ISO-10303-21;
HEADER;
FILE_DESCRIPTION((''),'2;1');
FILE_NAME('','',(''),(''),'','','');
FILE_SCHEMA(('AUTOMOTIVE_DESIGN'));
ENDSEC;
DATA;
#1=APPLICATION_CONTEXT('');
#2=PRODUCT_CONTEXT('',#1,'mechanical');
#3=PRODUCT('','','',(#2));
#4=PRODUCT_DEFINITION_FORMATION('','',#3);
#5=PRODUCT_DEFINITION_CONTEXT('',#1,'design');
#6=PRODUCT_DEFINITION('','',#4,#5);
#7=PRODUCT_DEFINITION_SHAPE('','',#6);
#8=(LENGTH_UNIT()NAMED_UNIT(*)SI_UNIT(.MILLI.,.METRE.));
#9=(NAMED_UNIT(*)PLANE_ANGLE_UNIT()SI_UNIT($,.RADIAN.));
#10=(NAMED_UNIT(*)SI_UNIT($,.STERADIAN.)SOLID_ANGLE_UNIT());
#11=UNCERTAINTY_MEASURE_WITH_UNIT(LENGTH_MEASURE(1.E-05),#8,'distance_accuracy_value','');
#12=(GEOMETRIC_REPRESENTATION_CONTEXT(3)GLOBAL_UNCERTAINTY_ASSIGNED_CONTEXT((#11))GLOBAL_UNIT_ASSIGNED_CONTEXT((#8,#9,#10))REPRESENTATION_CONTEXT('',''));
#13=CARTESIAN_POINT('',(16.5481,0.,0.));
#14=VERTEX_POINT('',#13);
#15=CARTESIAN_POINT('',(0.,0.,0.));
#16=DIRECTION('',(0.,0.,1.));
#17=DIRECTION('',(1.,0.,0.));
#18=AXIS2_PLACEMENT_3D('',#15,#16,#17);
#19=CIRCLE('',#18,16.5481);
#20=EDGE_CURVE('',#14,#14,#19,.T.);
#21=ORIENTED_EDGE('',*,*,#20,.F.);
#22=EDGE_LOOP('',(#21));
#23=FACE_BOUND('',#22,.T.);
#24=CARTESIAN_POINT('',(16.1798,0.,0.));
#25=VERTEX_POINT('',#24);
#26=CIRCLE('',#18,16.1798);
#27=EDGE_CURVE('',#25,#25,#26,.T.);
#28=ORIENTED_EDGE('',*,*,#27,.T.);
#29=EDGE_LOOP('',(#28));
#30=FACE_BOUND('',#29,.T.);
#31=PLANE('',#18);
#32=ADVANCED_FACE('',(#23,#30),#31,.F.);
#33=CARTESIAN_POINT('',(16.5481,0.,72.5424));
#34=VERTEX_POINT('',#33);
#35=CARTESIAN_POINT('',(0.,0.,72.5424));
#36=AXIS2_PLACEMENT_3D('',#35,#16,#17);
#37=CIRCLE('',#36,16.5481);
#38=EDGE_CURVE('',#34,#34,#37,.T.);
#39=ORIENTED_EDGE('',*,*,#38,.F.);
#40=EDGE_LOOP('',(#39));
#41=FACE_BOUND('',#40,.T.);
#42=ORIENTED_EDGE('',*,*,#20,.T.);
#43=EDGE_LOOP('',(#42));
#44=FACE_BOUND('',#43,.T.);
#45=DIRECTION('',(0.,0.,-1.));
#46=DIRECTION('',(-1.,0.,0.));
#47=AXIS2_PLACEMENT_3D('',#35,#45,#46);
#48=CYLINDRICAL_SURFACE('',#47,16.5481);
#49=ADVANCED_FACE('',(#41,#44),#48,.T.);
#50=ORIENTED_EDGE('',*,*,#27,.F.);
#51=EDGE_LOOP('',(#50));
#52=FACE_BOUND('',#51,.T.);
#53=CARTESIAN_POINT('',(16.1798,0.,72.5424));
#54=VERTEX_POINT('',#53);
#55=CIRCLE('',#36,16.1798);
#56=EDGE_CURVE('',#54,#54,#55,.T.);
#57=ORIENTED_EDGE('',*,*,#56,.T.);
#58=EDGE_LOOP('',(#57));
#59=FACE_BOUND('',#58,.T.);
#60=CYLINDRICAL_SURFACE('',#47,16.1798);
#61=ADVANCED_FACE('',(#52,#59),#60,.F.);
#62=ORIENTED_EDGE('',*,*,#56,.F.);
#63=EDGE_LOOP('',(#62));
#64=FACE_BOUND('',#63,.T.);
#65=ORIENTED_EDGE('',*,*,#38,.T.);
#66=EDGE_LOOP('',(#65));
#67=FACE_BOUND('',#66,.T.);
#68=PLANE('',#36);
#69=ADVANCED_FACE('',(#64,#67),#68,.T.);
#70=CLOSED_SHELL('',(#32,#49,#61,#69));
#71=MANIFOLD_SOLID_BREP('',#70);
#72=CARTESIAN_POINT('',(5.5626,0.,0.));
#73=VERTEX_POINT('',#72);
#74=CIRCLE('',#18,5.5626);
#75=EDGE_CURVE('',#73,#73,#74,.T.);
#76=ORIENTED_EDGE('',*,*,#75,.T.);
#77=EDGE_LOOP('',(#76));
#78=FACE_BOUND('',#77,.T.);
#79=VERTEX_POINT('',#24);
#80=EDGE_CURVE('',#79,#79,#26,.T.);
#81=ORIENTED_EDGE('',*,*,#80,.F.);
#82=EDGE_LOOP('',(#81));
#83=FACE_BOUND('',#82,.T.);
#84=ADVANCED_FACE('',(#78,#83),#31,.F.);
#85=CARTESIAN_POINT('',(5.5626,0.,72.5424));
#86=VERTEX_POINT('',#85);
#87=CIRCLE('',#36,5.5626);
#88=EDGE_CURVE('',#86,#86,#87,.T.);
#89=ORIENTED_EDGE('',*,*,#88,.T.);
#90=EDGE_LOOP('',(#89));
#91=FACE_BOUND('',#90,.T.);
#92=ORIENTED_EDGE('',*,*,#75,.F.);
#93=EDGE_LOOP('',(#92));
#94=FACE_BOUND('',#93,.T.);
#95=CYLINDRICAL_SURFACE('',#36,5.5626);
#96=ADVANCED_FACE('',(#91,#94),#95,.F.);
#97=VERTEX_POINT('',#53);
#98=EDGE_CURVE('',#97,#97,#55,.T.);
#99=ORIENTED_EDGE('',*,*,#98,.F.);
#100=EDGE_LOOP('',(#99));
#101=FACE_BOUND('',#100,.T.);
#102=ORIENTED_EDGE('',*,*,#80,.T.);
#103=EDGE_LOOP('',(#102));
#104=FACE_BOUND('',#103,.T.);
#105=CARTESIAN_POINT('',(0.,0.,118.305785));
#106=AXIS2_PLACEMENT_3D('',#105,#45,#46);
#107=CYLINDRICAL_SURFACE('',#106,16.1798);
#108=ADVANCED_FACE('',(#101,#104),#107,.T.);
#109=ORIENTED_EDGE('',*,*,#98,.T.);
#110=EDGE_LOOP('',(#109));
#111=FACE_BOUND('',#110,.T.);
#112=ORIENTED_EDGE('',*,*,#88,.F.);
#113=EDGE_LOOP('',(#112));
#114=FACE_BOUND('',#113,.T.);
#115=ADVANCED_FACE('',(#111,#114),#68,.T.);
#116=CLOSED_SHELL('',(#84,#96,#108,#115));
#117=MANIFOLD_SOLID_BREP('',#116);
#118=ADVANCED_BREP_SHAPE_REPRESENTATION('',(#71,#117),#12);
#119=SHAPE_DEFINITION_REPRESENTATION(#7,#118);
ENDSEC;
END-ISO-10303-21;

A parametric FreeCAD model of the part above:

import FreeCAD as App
import Part
import Sketcher
Q = App.Units.Quantity

doc = App.newDocument("Part")
body = doc.addObject("PartDesign::Body", "Body")

# Sketch on XY plane
sketch1 = body.newObject("Sketcher::SketchObject", "Sketch")
sketch1.AttachmentSupport = (doc.getObject("XY_Plane"), [""])
sketch1.MapMode = "FlatFace"
sketch1.addGeometry(Part.Circle(App.Vector(0, 0, 0), App.Vector(0, 0, 1), 17), False)
sketch1.addGeometry(Part.Circle(App.Vector(0, 0, 0), App.Vector(0, 0, 1), 16), False)
sketch1.addConstraint(Sketcher.Constraint("Coincident", 0, 3, -1, 1))
sketch1.addConstraint(Sketcher.Constraint("Coincident", 1, 3, -1, 1))
sketch1.addConstraint(Sketcher.Constraint("Diameter", 0, Q("1.303 in")))
sketch1.addConstraint(Sketcher.Constraint("Diameter", 1, Q("1.274 in")))
pad1 = body.newObject("PartDesign::Pad", "Pad")
pad1.Profile = sketch1
pad1.Length = Q("2.856 in")
body2 = doc.addObject("PartDesign::Body", "Body001")

# Sketch on XY plane
sketch2 = body2.newObject("Sketcher::SketchObject", "Sketch001")
sketch2.AttachmentSupport = (doc.getObject("XY_Plane001"), [""])
sketch2.MapMode = "FlatFace"
sketch2.addGeometry(Part.Circle(App.Vector(0, 0, 0), App.Vector(0, 0, 1), 16), False)
sketch2.addConstraint(Sketcher.Constraint("Coincident", 0, 3, -1, 1))
sketch2.addConstraint(Sketcher.Constraint("Diameter", 0, Q("1.274 in")))
pad2 = body2.newObject("PartDesign::Pad", "Pad001")
pad2.Profile = sketch2
pad2.Length = Q("2.856 in")

# Sketch on YZ plane
sketch3 = body2.newObject("Sketcher::SketchObject", "Sketch002")
sketch3.AttachmentSupport = (doc.getObject("YZ_Plane001"), [""])
sketch3.MapMode = "FlatFace"
sketch3.addGeometry(Part.LineSegment(App.Vector(0, 0, 0), App.Vector(0, 73, 0)), False)
sketch3.addGeometry(Part.LineSegment(App.Vector(0, 73, 0), App.Vector(-6, 73, 0)), False)
sketch3.addGeometry(Part.LineSegment(App.Vector(-6, 73, 0), App.Vector(-6, 0, 0)), False)
sketch3.addGeometry(Part.LineSegment(App.Vector(-6, 0, 0), App.Vector(0, 0, 0)), False)
sketch3.addConstraint(Sketcher.Constraint("Coincident", 0, 2, 1, 1))
sketch3.addConstraint(Sketcher.Constraint("Coincident", 1, 2, 2, 1))
sketch3.addConstraint(Sketcher.Constraint("Coincident", 2, 2, 3, 1))
sketch3.addConstraint(Sketcher.Constraint("Coincident", 3, 2, 0, 1))
sketch3.addConstraint(Sketcher.Constraint("Vertical", 0))
sketch3.addConstraint(Sketcher.Constraint("Horizontal", 1))
sketch3.addConstraint(Sketcher.Constraint("Vertical", 2))
sketch3.addConstraint(Sketcher.Constraint("Horizontal", 3))
sketch3.addConstraint(Sketcher.Constraint("Coincident", 3, 2, -1, 1))
sketch3.addConstraint(Sketcher.Constraint("DistanceX", 1, 2, 1, 1, Q("0.219 in")))
sketch3.addConstraint(Sketcher.Constraint("DistanceY", 0, 1, 0, 2, Q("2.856 in")))
groove = body2.newObject("PartDesign::Groove", "Groove")
groove.Profile = sketch3
groove.ReferenceAxis = (sketch3, ["V_Axis"])
groove.Angle = 360

doc.recompute()
